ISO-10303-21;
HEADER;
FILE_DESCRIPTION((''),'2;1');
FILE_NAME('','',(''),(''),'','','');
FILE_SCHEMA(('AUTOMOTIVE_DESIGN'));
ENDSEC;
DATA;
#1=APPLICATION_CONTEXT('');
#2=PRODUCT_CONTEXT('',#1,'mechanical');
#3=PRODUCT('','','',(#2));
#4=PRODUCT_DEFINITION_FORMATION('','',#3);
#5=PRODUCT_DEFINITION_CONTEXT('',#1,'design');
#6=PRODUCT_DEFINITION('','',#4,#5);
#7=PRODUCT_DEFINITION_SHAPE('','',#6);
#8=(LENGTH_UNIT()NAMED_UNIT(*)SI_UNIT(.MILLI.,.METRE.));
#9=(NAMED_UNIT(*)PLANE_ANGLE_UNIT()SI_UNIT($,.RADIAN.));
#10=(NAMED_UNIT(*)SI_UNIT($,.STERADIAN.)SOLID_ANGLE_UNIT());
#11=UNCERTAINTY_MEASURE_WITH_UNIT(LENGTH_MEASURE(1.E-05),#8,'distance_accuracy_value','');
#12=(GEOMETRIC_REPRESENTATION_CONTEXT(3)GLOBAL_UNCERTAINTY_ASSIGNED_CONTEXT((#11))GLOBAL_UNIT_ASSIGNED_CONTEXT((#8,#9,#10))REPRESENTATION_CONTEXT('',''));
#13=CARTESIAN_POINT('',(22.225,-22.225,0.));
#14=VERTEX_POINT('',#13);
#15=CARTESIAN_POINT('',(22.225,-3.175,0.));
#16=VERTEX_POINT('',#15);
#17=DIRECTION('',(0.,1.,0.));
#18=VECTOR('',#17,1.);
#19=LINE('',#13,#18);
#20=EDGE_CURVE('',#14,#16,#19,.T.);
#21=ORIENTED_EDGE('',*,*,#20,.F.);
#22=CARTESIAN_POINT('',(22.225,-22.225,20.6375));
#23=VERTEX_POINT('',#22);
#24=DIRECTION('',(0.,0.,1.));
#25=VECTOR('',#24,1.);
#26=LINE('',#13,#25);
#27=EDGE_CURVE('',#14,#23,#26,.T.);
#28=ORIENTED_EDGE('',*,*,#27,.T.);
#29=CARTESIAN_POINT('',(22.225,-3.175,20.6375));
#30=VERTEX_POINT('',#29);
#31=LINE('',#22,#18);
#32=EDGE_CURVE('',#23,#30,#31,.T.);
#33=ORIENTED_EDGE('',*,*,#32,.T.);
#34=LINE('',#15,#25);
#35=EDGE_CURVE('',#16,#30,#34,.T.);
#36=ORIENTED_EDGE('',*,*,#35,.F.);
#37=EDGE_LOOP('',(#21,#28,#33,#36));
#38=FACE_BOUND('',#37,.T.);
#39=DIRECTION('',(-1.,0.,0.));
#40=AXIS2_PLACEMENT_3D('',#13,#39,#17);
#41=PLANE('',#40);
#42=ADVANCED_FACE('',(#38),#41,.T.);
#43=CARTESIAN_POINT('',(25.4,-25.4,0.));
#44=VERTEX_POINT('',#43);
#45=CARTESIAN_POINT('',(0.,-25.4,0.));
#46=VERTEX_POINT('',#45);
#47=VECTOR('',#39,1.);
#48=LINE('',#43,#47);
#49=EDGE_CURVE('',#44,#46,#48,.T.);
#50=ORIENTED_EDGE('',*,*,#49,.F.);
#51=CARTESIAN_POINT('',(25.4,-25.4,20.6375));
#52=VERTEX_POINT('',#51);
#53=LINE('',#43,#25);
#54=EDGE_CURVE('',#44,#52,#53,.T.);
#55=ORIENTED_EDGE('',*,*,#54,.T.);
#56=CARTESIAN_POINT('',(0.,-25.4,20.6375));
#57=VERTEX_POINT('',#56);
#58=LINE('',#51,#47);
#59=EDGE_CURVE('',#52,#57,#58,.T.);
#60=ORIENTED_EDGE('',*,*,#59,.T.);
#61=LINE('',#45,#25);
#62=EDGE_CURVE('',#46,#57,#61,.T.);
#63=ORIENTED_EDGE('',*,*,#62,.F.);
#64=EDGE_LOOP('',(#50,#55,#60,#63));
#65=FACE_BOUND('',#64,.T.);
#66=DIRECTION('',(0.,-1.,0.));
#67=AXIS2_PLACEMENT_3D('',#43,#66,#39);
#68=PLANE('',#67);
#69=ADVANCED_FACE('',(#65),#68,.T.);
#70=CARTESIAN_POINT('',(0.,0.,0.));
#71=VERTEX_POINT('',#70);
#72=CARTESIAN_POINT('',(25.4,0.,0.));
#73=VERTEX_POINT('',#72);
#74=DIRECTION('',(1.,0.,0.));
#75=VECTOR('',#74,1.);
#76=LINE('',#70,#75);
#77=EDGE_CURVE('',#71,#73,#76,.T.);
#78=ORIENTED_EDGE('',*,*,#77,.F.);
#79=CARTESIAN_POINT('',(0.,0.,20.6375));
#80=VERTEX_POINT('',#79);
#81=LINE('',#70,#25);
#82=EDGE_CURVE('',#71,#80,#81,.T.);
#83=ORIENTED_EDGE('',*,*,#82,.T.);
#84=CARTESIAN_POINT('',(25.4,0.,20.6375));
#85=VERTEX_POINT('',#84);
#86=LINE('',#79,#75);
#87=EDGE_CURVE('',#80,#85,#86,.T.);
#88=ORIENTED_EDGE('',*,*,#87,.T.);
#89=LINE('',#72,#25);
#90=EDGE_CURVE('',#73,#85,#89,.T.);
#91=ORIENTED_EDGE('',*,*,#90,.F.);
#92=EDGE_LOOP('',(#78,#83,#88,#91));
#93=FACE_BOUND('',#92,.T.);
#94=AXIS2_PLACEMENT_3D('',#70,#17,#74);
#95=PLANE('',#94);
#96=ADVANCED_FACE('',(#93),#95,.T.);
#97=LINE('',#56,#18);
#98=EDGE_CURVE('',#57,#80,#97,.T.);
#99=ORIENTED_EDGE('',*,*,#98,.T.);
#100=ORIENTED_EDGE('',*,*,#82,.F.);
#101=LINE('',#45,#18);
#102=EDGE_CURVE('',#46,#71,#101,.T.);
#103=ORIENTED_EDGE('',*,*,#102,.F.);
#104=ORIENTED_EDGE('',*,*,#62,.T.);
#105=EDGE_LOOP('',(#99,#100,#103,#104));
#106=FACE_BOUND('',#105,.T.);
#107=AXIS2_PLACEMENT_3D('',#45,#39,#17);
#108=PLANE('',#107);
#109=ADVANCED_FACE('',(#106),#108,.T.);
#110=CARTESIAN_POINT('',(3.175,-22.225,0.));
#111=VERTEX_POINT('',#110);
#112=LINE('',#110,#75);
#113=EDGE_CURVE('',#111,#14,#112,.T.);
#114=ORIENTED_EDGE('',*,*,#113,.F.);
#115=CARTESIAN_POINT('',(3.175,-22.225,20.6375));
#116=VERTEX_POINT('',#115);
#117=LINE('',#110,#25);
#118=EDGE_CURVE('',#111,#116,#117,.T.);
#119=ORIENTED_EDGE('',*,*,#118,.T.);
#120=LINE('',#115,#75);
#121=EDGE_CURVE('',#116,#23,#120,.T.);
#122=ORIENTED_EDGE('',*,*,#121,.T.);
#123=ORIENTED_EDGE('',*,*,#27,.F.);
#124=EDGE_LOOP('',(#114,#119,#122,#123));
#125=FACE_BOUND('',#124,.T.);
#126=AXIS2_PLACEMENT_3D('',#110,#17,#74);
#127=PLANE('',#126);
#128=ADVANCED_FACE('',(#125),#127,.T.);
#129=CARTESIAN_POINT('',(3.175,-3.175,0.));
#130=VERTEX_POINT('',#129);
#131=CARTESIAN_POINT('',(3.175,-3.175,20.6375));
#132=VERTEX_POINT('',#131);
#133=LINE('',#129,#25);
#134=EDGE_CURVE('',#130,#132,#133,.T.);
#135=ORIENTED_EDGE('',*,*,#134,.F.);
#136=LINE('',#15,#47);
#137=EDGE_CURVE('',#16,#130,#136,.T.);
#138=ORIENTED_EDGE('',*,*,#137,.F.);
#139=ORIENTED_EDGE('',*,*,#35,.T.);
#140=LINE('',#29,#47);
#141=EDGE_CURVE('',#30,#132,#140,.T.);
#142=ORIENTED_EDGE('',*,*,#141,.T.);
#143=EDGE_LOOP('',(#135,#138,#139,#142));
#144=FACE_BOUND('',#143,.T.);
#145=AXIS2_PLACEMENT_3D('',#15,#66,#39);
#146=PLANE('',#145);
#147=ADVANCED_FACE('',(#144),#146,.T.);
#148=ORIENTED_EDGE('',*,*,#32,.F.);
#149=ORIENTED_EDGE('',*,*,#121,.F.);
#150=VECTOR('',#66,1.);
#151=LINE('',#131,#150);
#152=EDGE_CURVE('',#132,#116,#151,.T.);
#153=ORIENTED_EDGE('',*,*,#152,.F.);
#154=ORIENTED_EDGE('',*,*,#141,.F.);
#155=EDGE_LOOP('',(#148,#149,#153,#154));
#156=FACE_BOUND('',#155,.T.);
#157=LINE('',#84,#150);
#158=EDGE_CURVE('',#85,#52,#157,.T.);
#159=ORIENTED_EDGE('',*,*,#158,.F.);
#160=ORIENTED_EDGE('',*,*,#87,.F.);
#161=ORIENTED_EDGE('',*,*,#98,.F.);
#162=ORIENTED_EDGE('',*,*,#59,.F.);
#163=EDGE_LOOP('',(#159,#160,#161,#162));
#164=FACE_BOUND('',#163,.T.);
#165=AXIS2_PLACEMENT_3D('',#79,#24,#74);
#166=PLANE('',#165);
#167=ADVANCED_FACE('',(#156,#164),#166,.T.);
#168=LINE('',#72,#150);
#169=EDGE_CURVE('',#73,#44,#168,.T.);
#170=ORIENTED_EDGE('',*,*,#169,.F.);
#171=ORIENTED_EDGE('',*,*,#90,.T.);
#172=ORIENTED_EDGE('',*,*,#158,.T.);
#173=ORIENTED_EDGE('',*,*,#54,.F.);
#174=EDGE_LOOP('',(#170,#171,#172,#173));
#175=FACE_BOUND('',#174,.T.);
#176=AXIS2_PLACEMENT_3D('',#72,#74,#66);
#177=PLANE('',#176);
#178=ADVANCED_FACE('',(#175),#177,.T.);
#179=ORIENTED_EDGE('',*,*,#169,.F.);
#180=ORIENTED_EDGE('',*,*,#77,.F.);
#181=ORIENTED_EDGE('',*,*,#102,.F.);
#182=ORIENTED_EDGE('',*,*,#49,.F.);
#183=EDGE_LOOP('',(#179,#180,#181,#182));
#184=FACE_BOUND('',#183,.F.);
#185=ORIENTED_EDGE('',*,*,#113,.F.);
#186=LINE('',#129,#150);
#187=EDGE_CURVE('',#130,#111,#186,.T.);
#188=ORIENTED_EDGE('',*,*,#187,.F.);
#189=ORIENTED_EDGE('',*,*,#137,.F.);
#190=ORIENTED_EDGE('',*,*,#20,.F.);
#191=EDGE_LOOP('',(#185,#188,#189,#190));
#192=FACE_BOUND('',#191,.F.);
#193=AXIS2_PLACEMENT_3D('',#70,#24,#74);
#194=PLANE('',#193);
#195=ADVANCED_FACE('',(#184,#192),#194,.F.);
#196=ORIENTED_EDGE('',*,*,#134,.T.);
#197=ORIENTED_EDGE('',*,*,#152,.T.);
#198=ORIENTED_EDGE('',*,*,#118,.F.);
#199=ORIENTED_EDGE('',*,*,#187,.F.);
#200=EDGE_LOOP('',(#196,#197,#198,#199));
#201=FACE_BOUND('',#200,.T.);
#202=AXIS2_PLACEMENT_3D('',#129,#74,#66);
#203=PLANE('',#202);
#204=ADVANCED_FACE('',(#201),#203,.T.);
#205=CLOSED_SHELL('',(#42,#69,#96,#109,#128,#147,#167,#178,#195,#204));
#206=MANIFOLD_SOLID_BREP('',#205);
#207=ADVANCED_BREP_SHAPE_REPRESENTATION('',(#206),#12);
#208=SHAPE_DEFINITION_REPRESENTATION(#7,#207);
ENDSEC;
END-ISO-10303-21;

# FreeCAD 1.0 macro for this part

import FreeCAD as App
import Part
import Sketcher

V = App.Vector
Q = App.Units.Quantity


def add_polygon(sketch, points):
    """Adds a closed chain of lines whose ends are joined by coincident constraints."""
    first, n = sketch.GeometryCount, len(points)
    for a, b in zip(points, points[1:] + points[:1]):
        sketch.addGeometry(Part.LineSegment(App.Vector(*a, 0), App.Vector(*b, 0)), False)
    for i in range(n):
        sketch.addConstraint(Sketcher.Constraint("Coincident", first + i, 2, first + (i + 1) % n, 1))

doc = App.newDocument("Part")
body = doc.addObject("PartDesign::Body", "Body")

# Sketch on XY plane
sketch1 = body.newObject("Sketcher::SketchObject", "Sketch")
sketch1.AttachmentSupport = (doc.getObject("XY_Plane"), [""])
sketch1.MapMode = "FlatFace"
add_polygon(sketch1, [(25.4, 0), (0, 0), (0, -25.4), (25.4, -25.4)])  # lines 0-3
add_polygon(sketch1, [(3.175, -3.175), (22.225, -3.175), (22.225, -22.225), (3.175, -22.225)])  # lines 4-7
sketch1.addConstraint(Sketcher.Constraint("Horizontal", 0))
sketch1.addConstraint(Sketcher.Constraint("Vertical", 1))
sketch1.addConstraint(Sketcher.Constraint("Horizontal", 2))
sketch1.addConstraint(Sketcher.Constraint("Vertical", 3))
sketch1.addConstraint(Sketcher.Constraint("Horizontal", 4))
sketch1.addConstraint(Sketcher.Constraint("Vertical", 5))
sketch1.addConstraint(Sketcher.Constraint("Horizontal", 6))
sketch1.addConstraint(Sketcher.Constraint("Vertical", 7))
sketch1.addConstraint(Sketcher.Constraint("Coincident", 0, 2, -1, 1))
sketch1.addConstraint(Sketcher.Constraint("Equal", 2, 1))
sketch1.addConstraint(Sketcher.Constraint("Equal", 6, 5))
sketch1.addConstraint(Sketcher.Constraint("DistanceX", 0, 2, 0, 1, Q("1 in")))
sketch1.addConstraint(Sketcher.Constraint("DistanceY", 4, 2, -1, 1, Q("0.125 in")))
sketch1.addConstraint(Sketcher.Constraint("DistanceX", -1, 1, 6, 2, Q("0.125 in")))
sketch1.addConstraint(Sketcher.Constraint("DistanceX", 4, 2, 3, 2, Q("0.125 in")))
pad1 = body.newObject("PartDesign::Pad", "Pad")
pad1.Profile = sketch1
pad1.Length = Q("0.8125 in")

doc.recompute()
